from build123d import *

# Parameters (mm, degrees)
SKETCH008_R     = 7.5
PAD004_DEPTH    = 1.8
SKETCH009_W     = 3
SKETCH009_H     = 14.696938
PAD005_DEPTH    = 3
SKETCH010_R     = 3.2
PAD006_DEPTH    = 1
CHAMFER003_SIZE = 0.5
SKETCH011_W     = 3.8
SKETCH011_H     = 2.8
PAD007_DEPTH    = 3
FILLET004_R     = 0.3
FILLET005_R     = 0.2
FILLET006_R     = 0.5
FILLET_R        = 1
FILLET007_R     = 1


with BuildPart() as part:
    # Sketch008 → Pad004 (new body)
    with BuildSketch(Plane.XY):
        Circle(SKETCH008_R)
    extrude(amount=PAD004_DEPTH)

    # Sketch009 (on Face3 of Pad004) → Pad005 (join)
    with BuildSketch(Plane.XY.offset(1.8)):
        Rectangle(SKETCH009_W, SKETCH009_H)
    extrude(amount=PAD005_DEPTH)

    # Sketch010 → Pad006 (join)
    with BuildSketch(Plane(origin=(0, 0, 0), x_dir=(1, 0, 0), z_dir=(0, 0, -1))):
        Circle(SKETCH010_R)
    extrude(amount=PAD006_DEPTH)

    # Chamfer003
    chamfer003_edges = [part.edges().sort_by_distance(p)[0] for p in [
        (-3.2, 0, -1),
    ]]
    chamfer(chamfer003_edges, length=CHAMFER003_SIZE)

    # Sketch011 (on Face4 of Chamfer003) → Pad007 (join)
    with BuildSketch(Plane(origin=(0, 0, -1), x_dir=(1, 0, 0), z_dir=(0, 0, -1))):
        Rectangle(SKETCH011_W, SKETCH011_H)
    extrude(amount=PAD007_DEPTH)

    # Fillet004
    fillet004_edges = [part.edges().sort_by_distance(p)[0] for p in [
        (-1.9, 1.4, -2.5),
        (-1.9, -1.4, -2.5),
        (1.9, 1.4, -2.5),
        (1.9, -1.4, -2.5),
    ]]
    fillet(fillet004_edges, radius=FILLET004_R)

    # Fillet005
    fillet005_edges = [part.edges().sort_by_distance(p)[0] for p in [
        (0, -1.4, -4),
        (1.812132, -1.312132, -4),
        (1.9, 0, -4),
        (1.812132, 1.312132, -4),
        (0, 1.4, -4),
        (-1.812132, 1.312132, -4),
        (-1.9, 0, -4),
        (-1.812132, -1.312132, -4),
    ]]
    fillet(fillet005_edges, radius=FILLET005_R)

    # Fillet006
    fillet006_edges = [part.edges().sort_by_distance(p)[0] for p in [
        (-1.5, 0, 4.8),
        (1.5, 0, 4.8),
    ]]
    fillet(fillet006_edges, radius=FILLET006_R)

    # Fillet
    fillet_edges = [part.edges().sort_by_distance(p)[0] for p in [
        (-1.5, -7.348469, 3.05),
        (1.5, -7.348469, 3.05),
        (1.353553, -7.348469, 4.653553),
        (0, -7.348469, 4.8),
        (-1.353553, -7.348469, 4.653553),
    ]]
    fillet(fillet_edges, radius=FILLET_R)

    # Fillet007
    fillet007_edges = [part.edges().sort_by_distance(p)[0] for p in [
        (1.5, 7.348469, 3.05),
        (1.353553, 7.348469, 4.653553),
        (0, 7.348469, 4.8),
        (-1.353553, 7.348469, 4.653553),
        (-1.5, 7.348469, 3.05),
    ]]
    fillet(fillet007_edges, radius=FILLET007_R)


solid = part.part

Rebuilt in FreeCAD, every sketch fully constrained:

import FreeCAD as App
import Part
import Sketcher


def edges_at(feature, points):
    """Names of the edges that pass closest to the given points."""
    edges = feature.Shape.Edges
    near = lambda p: min(range(len(edges)), key=lambda i: edges[i].distToShape(Part.Vertex(*p))[0])
    return sorted({f"Edge{near(p) + 1}" for p in points})


def add_polygon(sketch, points):
    """Adds a closed chain of lines whose ends are joined by coincident constraints."""
    first, n = sketch.GeometryCount, len(points)
    for a, b in zip(points, points[1:] + points[:1]):
        sketch.addGeometry(Part.LineSegment(App.Vector(*a, 0), App.Vector(*b, 0)), False)
    for i in range(n):
        sketch.addConstraint(Sketcher.Constraint("Coincident", first + i, 2, first + (i + 1) % n, 1))

doc = App.newDocument("Part")
body = doc.addObject("PartDesign::Body", "Body")

# Sketch on XY plane
sketch1 = body.newObject("Sketcher::SketchObject", "Sketch")
sketch1.AttachmentSupport = (doc.getObject("XY_Plane"), [""])
sketch1.MapMode = "FlatFace"
sketch1.addGeometry(Part.Circle(App.Vector(0, 0, 0), App.Vector(0, 0, 1), 8), False)
sketch1.addConstraint([
    Sketcher.Constraint("Coincident", 0, 3, -1, 1),
    Sketcher.Constraint("Diameter", 0, 15.0),
])
pad1 = body.newObject("PartDesign::Pad", "Pad")
pad1.Profile = sketch1
pad1.Length = 1.8

# Sketch on XY plane
sketch2 = body.newObject("Sketcher::SketchObject", "Sketch001")
sketch2.AttachmentSupport = (doc.getObject("XY_Plane"), [""])
sketch2.MapMode = "FlatFace"
sketch2.AttachmentOffset = App.Placement(App.Vector(0, 0, 1.8), App.Rotation())
add_polygon(sketch2, [(-1.5, 7.3), (-1.5, -7.3), (1.5, -7.3), (1.5, 7.3)])  # lines 0-3
sketch2.addConstraint([
    Sketcher.Constraint("Vertical", 0),
    Sketcher.Constraint("Horizontal", 1),
    Sketcher.Constraint("Vertical", 2),
    Sketcher.Constraint("Horizontal", 3),
    Sketcher.Constraint("Symmetric", 0, 2, 2, 2, -1, 1),
    Sketcher.Constraint("DistanceX", 1, 1, 1, 2, 3.0),
    Sketcher.Constraint("DistanceY", 0, 2, 0, 1, 14.696938),
])
pad2 = body.newObject("PartDesign::Pad", "Pad001")
pad2.Profile = sketch2
pad2.Length = 3

# Sketch on XY plane
sketch3 = body.newObject("Sketcher::SketchObject", "Sketch002")
sketch3.AttachmentSupport = (doc.getObject("XY_Plane"), [""])
sketch3.MapMode = "FlatFace"
sketch3.addGeometry(Part.Circle(App.Vector(0, 0, 0), App.Vector(0, 0, 1), 3.2), False)
sketch3.addConstraint([
    Sketcher.Constraint("Coincident", 0, 3, -1, 1),
    Sketcher.Constraint("Diameter", 0, 6.4),
])
pad3 = body.newObject("PartDesign::Pad", "Pad002")
pad3.Profile = sketch3
pad3.Length = 1
pad3.Reversed = True
doc.recompute()

chamfer = body.newObject("PartDesign::Chamfer", "Chamfer")
chamfer.Base = (pad3, edges_at(pad3, [(-3.2, 0, -1)]))
chamfer.Size = 0.5

# Sketch on XY plane
sketch4 = body.newObject("Sketcher::SketchObject", "Sketch003")
sketch4.AttachmentSupport = (doc.getObject("XY_Plane"), [""])
sketch4.MapMode = "FlatFace"
sketch4.AttachmentOffset = App.Placement(App.Vector(0, 0, -1), App.Rotation())
add_polygon(sketch4, [(-1.9, -1.4), (-1.9, 1.4), (1.9, 1.4), (1.9, -1.4)])  # lines 0-3
sketch4.addConstraint([
    Sketcher.Constraint("Vertical", 0),
    Sketcher.Constraint("Horizontal", 1),
    Sketcher.Constraint("Vertical", 2),
    Sketcher.Constraint("Horizontal", 3),
    Sketcher.Constraint("Symmetric", 0, 2, 2, 2, -1, 1),
    Sketcher.Constraint("DistanceX", 1, 1, 1, 2, 3.8),
    Sketcher.Constraint("DistanceY", 0, 1, 0, 2, 2.8),
])
pad4 = body.newObject("PartDesign::Pad", "Pad003")
pad4.Profile = sketch4
pad4.Length = 3
pad4.Reversed = True
doc.recompute()

fillet = body.newObject("PartDesign::Fillet", "Fillet")
fillet.Base = (pad4, edges_at(pad4, [
    (-1.9, 1.4, -2.5),
    (-1.9, -1.4, -2.5),
    (1.9, 1.4, -2.5),
    (1.9, -1.4, -2.5),
]))
fillet.Radius = 0.3
doc.recompute()

fillet2 = body.newObject("PartDesign::Fillet", "Fillet001")
fillet2.Base = (fillet, edges_at(fillet, [
    (0, -1.4, -4),
    (1.812, -1.312, -4),
    (1.9, 0, -4),
    (1.812, 1.312, -4),
    (0, 1.4, -4),
    (-1.812, 1.312, -4),
    (-1.9, 0, -4),
    (-1.812, -1.312, -4),
]))
fillet2.Radius = 0.2
doc.recompute()

fillet3 = body.newObject("PartDesign::Fillet", "Fillet002")
fillet3.Base = (fillet2, edges_at(fillet2, [(-1.5, 0, 4.8), (1.5, 0, 4.8)]))
fillet3.Radius = 0.5
doc.recompute()

fillet4 = body.newObject("PartDesign::Fillet", "Fillet003")
fillet4.Base = (fillet3, edges_at(fillet3, [
    (-1.5, -7.348, 3.05),
    (1.5, -7.348, 3.05),
    (1.354, -7.348, 4.654),
    (0, -7.348, 4.8),
    (-1.354, -7.348, 4.654),
]))
fillet4.Radius = 1
doc.recompute()

fillet5 = body.newObject("PartDesign::Fillet", "Fillet004")
fillet5.Base = (fillet4, edges_at(fillet4, [
    (1.5, 7.348, 3.05),
    (1.354, 7.348, 4.654),
    (0, 7.348, 4.8),
    (-1.354, 7.348, 4.654),
    (-1.5, 7.348, 3.05),
]))
fillet5.Radius = 1

doc.recompute()
